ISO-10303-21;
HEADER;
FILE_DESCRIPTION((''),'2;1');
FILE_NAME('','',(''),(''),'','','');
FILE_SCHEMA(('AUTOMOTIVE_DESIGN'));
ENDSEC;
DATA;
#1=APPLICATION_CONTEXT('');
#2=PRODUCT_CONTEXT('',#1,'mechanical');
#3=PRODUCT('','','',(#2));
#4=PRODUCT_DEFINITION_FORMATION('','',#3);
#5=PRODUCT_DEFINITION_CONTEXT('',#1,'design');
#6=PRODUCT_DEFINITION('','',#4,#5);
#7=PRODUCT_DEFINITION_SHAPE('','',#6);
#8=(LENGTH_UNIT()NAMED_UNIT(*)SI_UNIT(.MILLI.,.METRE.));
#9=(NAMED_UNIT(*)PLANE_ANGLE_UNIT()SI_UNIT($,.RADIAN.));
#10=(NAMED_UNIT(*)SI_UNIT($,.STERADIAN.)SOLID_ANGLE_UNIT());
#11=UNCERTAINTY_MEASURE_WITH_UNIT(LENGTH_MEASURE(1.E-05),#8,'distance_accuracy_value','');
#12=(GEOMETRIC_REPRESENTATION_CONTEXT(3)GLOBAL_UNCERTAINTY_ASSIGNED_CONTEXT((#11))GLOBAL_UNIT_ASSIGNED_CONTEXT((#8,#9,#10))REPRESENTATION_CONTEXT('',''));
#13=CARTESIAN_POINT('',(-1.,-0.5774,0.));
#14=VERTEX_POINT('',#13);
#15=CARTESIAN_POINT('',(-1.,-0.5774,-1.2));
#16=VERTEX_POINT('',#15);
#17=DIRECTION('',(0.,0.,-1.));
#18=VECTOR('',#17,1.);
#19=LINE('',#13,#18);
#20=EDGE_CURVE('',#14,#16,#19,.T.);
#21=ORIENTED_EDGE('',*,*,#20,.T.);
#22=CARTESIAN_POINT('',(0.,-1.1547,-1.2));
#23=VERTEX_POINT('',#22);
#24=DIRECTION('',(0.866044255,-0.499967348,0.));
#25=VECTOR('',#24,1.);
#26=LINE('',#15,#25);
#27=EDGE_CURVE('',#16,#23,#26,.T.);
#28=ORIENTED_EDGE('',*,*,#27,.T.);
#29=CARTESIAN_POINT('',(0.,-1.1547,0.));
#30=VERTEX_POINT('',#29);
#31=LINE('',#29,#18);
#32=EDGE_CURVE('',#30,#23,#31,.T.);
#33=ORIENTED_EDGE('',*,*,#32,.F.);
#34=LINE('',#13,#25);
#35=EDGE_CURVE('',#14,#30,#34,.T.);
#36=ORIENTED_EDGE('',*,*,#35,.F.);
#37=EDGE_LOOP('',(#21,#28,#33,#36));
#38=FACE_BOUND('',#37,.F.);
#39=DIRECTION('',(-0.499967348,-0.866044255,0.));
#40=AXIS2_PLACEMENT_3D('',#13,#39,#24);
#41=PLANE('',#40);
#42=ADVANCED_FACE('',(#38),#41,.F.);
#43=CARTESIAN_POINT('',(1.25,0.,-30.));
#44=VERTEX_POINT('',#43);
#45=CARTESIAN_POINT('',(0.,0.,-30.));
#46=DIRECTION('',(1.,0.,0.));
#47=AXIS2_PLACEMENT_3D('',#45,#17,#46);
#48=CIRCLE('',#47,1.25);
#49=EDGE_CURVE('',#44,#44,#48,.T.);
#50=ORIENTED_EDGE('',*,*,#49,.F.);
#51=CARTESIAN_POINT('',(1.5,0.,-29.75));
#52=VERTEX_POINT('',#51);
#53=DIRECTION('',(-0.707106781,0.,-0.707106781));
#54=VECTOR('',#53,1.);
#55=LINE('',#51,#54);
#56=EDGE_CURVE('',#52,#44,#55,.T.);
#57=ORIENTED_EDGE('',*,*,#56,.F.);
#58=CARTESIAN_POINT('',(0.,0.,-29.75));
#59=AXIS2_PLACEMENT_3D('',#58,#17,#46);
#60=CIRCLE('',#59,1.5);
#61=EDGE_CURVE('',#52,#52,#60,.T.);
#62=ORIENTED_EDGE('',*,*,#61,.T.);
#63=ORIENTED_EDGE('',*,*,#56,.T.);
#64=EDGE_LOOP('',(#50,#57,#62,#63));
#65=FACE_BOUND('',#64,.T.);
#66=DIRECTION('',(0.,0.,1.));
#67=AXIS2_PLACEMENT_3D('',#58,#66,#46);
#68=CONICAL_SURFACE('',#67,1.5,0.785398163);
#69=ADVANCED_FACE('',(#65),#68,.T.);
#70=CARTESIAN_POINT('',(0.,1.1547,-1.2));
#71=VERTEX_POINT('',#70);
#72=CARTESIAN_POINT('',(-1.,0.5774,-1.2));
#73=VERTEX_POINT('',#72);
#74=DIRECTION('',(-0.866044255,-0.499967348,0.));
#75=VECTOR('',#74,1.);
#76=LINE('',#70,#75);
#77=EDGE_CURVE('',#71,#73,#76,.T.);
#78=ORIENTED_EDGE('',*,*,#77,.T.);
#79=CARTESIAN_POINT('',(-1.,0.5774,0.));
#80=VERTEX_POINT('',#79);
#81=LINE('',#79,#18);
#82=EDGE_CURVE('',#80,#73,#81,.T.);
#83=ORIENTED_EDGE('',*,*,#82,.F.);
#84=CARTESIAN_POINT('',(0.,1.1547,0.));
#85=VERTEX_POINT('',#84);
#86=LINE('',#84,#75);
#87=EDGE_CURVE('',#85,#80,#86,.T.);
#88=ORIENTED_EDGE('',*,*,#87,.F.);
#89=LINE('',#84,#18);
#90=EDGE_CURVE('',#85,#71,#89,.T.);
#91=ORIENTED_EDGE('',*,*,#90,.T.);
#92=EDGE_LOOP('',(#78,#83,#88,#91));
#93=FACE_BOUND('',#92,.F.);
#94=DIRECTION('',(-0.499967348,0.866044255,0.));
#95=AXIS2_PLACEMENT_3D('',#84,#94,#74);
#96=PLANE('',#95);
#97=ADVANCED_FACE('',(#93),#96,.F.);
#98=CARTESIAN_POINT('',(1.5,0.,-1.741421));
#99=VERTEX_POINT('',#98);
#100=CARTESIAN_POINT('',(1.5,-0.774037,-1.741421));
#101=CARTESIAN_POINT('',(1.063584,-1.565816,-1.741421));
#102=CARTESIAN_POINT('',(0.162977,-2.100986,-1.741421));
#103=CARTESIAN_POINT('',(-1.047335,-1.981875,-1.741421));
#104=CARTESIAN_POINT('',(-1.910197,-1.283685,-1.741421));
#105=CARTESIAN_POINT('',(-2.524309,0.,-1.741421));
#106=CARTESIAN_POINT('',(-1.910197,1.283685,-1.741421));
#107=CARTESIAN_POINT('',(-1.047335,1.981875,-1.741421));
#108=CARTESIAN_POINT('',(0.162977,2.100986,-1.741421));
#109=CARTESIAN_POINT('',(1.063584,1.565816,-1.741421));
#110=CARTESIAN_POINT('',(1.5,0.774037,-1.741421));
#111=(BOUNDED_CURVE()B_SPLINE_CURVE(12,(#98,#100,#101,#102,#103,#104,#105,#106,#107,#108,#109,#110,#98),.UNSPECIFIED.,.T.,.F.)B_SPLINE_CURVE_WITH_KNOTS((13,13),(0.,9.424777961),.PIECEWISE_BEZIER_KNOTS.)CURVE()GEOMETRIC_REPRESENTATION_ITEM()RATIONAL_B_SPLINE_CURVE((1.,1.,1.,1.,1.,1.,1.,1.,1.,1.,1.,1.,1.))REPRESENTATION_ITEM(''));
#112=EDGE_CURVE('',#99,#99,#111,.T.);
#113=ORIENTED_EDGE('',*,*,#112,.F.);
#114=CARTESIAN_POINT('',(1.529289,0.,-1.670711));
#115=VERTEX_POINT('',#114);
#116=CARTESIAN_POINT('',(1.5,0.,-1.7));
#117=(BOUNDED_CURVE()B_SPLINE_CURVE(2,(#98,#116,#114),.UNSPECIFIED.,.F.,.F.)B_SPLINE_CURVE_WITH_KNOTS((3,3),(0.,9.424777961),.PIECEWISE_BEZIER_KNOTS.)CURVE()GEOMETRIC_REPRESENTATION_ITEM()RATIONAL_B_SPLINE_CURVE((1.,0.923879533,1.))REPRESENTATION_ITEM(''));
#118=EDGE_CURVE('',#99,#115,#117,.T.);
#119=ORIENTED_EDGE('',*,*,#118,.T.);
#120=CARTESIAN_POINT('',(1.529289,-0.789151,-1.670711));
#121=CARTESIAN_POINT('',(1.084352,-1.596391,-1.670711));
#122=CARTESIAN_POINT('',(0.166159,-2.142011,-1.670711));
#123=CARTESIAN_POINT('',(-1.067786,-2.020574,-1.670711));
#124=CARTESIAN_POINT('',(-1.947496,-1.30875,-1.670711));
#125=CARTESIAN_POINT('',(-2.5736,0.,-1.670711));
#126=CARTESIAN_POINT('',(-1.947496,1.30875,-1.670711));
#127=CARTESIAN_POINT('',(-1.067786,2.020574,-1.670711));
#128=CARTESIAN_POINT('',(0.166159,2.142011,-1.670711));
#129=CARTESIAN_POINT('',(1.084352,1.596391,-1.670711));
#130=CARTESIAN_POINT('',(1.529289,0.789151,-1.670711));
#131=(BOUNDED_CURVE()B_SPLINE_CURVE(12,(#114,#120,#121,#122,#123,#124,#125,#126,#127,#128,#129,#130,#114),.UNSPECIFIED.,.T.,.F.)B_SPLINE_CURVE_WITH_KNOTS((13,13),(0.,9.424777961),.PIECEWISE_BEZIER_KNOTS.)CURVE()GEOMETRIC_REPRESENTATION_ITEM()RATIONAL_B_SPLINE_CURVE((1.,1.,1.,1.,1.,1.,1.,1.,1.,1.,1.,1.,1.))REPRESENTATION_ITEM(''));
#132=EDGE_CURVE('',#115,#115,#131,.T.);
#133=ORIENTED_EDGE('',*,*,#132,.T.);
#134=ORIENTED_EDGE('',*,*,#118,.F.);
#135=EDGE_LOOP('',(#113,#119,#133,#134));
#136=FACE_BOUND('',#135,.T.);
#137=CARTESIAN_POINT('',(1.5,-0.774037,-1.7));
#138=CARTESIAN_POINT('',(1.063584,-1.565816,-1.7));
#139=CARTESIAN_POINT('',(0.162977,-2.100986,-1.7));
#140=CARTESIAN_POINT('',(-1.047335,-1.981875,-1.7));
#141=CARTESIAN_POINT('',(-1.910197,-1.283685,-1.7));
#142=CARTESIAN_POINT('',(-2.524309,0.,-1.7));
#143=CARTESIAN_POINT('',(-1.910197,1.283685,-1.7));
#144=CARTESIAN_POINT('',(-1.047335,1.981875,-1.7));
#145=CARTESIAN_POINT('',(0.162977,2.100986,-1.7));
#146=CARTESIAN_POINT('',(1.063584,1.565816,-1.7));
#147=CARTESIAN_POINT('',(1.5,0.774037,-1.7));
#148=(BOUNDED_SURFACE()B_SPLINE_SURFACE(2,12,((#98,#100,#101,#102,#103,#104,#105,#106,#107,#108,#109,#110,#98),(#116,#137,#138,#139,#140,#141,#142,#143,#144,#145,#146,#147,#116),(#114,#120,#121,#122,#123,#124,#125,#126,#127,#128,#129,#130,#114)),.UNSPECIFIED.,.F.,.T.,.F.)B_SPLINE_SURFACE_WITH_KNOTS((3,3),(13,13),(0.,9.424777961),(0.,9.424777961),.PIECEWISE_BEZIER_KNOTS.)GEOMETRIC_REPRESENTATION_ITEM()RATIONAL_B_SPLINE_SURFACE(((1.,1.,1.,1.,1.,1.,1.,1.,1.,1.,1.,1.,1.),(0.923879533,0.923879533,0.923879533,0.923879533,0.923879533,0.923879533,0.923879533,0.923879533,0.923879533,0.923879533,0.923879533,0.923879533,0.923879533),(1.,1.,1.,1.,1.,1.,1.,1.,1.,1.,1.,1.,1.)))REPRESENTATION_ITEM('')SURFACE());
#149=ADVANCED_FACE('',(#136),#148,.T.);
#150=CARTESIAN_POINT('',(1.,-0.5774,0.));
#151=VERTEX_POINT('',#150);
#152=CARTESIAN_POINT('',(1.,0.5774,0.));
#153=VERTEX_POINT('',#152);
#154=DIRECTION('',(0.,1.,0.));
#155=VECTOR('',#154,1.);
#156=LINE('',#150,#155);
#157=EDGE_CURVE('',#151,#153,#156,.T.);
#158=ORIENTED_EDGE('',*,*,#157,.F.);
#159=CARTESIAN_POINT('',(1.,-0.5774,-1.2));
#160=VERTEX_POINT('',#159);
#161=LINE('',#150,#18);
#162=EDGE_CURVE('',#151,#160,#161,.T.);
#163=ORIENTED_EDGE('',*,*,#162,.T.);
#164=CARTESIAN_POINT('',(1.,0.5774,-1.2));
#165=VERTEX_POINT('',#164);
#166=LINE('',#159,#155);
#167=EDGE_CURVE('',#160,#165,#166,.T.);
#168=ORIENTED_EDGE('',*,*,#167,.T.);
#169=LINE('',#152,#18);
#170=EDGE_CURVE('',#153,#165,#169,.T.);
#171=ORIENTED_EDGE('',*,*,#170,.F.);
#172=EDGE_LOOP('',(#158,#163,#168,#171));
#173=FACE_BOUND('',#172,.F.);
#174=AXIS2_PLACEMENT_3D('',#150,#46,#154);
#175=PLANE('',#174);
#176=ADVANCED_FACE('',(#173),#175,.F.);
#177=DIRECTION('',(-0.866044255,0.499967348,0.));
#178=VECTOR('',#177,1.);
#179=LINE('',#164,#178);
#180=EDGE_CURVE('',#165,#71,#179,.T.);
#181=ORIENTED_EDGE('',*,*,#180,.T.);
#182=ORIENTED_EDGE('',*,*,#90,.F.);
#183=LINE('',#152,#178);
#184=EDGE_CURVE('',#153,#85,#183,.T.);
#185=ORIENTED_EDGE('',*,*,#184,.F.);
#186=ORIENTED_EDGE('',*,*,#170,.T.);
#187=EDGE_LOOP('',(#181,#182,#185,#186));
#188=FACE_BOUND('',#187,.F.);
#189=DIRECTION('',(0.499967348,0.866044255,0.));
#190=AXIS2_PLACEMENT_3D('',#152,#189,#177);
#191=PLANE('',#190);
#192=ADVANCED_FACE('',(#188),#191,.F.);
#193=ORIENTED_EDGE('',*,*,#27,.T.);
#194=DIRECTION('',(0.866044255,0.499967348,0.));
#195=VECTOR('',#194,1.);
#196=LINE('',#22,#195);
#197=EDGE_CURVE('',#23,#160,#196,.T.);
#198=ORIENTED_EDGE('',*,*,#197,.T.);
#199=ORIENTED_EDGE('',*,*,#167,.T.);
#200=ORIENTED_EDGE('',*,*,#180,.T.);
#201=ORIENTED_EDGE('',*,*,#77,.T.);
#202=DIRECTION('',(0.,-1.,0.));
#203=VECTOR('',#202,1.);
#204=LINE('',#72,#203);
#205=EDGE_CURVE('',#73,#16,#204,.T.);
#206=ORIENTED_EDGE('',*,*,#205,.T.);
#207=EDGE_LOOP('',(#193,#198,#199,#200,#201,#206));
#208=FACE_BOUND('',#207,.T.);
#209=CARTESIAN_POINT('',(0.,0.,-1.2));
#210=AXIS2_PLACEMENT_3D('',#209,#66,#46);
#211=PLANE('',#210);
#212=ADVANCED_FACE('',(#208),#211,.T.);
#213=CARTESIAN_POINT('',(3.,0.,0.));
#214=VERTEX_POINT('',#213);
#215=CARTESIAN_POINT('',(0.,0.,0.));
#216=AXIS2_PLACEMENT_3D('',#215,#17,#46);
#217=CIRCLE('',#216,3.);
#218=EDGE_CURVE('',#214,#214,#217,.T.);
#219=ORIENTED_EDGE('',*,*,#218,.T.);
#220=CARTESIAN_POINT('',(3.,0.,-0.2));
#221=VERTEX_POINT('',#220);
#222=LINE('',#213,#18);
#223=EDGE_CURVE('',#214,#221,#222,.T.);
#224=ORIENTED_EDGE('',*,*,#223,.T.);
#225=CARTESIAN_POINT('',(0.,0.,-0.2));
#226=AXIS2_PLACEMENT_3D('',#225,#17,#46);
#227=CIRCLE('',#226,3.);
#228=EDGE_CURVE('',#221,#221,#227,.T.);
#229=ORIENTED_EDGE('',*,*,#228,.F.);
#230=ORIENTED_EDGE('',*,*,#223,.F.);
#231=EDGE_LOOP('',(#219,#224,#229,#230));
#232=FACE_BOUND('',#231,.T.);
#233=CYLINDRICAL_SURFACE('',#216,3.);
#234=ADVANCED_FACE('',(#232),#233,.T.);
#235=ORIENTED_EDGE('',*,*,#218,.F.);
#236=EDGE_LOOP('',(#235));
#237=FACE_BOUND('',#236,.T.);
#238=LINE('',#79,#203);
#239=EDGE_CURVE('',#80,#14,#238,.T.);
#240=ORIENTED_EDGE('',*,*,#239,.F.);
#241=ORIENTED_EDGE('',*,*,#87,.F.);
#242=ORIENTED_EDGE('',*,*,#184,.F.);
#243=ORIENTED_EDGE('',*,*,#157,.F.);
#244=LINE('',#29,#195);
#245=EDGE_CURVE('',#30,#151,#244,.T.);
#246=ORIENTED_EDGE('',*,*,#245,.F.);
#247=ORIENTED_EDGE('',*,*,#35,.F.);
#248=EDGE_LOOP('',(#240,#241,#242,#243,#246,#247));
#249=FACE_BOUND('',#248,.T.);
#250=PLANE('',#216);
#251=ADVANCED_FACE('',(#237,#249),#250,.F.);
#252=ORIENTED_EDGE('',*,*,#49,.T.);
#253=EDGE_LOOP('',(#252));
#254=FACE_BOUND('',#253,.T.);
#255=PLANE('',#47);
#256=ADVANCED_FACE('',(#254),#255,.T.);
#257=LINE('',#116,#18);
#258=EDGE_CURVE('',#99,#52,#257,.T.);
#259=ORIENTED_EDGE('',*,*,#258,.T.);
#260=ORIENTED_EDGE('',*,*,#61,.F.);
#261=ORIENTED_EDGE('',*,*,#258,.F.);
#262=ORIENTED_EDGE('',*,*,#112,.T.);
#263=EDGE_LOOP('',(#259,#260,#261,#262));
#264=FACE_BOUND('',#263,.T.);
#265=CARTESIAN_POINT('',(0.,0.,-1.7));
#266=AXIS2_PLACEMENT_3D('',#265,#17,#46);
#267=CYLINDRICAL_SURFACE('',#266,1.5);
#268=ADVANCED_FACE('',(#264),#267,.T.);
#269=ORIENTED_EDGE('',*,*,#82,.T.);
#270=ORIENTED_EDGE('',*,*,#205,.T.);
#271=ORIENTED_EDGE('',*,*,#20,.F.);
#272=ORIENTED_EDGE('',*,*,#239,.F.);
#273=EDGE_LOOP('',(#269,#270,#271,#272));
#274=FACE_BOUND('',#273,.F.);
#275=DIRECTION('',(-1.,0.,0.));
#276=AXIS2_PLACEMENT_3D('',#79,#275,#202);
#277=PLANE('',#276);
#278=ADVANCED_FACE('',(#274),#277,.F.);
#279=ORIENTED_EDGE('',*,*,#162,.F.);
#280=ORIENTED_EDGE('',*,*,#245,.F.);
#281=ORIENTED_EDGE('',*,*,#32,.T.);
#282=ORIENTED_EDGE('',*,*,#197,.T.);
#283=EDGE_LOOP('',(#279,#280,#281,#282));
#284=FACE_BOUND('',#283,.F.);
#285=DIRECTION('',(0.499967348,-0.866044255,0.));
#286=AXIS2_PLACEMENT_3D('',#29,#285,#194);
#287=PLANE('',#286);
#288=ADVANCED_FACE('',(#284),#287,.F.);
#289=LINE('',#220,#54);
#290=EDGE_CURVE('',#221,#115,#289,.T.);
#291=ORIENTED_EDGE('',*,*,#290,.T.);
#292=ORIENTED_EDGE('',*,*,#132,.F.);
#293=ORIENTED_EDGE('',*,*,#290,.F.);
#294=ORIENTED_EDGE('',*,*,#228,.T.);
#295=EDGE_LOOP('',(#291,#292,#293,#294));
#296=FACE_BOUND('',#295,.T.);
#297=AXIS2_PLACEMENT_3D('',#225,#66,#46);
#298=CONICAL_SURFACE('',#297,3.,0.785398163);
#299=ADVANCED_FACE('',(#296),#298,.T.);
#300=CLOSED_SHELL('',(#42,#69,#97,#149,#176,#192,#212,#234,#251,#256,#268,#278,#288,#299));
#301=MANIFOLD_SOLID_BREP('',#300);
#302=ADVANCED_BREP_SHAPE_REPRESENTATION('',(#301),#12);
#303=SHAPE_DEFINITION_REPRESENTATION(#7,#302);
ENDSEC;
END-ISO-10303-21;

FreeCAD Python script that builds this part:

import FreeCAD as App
import Part
import Sketcher

V = App.Vector


def edges_at(feature, points):
    """Names of the edges that pass closest to the given points."""
    edges = feature.Shape.Edges
    near = lambda p: min(range(len(edges)), key=lambda i: edges[i].distToShape(Part.Vertex(*p))[0])
    return sorted({f"Edge{near(p) + 1}" for p in points})


def add_polygon(sketch, points):
    """Adds a closed chain of lines whose ends are joined by coincident constraints."""
    first, n = sketch.GeometryCount, len(points)
    for a, b in zip(points, points[1:] + points[:1]):
        sketch.addGeometry(Part.LineSegment(App.Vector(*a, 0), App.Vector(*b, 0)), False)
    for i in range(n):
        sketch.addConstraint(Sketcher.Constraint("Coincident", first + i, 2, first + (i + 1) % n, 1))

doc = App.newDocument("Part")
body = doc.addObject("PartDesign::Body", "Body")

# Sketch on XZ plane
sketch1 = body.newObject("Sketcher::SketchObject", "Sketch")
sketch1.AttachmentSupport = (doc.getObject("XZ_Plane"), [""])
sketch1.MapMode = "FlatFace"
add_polygon(sketch1, [(1.5, -1.7), (1.5, -30), (0, -30), (0, 0), (3, 0), (3, -0.2)])  # lines 0-5
sketch1.addConstraint([
    Sketcher.Constraint("Vertical", 0),
    Sketcher.Constraint("Horizontal", 1),
    Sketcher.Constraint("Vertical", 2),
    Sketcher.Constraint("Horizontal", 3),
    Sketcher.Constraint("Vertical", 4),
    Sketcher.Constraint("Coincident", 2, 2, -1, 1),
    Sketcher.Constraint("DistanceX", 3, 1, 3, 2, 3.0),
    Sketcher.Constraint("DistanceY", 2, 1, 2, 2, 30.0),
    Sketcher.Constraint("DistanceX", 1, 2, 1, 1, 1.5),
    Sketcher.Constraint("DistanceY", 4, 2, 4, 1, 0.2),
    Sketcher.Constraint("DistanceY", 5, 2, 4, 2, 1.5),
])
revolution = body.newObject("PartDesign::Revolution", "Revolution")
revolution.Profile = sketch1
revolution.ReferenceAxis = (sketch1, ["V_Axis"])
revolution.Angle = 360

# Sketch on XY plane
sketch2 = body.newObject("Sketcher::SketchObject", "Sketch001")
sketch2.AttachmentSupport = (doc.getObject("XY_Plane"), [""])
sketch2.MapMode = "FlatFace"
add_polygon(sketch2, [(0, 1.2), (-1, 0.6), (-1, -0.6), (0, -1.2), (1, -0.6), (1, 0.6)])  # lines 0-5
sketch2.addConstraint([
    Sketcher.Constraint("Vertical", 1),
    Sketcher.Constraint("Vertical", 4),
    Sketcher.Constraint("Symmetric", 0, 2, 3, 2, -1, 1),
    Sketcher.Constraint("Symmetric", 2, 2, 5, 2, -1, 1),
    Sketcher.Constraint("PointOnObject", 2, 2, -2),
    Sketcher.Constraint("Parallel", 2, 5),
    Sketcher.Constraint("Horizontal", 1, 2, 3, 2),
    Sketcher.Constraint("DistanceX", 1, 2, 3, 2, 2.0),
    Sketcher.Constraint("DistanceY", 1, 2, 1, 1, 1.1548),
    Sketcher.Constraint("DistanceY", 2, 2, 0, 2, 1.732),
])
pocket1 = body.newObject("PartDesign::Pocket", "Pocket")
pocket1.Profile = sketch2
pocket1.Length = 1.2
doc.recompute()

fillet = body.newObject("PartDesign::Fillet", "Fillet")
fillet.Base = (pocket1, edges_at(pocket1, [(-1.5, 0, -1.7)]))
fillet.Radius = 0.1
doc.recompute()

chamfer = body.newObject("PartDesign::Chamfer", "Chamfer")
chamfer.Base = (fillet, edges_at(fillet, [(-1.5, 0, -30)]))
chamfer.Size = 0.25

doc.recompute()
